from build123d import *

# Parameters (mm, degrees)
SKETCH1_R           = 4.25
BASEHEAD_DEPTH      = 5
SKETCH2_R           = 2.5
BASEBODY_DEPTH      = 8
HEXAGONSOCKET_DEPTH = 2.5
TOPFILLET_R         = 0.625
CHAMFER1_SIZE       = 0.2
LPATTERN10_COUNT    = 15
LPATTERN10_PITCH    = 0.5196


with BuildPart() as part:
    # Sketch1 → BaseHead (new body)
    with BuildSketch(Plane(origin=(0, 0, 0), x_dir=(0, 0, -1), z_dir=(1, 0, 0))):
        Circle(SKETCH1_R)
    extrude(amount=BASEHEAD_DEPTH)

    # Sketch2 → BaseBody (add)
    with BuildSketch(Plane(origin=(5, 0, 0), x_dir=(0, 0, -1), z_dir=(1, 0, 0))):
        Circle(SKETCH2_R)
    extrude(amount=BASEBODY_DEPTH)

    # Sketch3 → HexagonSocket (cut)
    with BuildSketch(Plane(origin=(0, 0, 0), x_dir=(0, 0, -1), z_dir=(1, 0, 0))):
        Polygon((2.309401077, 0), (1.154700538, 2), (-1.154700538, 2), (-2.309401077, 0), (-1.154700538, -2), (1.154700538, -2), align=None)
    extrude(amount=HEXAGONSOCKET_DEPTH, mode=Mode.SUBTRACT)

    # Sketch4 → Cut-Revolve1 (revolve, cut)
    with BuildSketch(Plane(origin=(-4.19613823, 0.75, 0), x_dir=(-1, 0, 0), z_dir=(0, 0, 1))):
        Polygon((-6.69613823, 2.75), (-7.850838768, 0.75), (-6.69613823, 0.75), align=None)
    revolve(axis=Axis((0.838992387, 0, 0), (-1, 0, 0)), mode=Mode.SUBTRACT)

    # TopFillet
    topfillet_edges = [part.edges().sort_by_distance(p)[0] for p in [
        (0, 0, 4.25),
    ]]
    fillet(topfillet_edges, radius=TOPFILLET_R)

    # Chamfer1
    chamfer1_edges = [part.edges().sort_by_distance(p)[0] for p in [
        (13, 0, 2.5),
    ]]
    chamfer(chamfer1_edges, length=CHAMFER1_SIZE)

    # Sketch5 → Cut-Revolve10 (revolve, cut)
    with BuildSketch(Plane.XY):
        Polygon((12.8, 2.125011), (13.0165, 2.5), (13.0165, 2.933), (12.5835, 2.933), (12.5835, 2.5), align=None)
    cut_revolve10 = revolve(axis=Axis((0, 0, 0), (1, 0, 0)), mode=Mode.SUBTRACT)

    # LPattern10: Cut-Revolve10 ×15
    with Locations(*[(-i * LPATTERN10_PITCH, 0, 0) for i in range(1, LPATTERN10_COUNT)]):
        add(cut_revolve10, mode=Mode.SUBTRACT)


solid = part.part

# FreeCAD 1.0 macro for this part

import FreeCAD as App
import Part
import Sketcher

V = App.Vector
Q = App.Units.Quantity


def edges_at(feature, points):
    """Names of the edges that pass closest to the given points."""
    edges = feature.Shape.Edges
    near = lambda p: min(range(len(edges)), key=lambda i: edges[i].distToShape(Part.Vertex(*p))[0])
    return sorted({f"Edge{near(p) + 1}" for p in points})


def add_polygon(sketch, points):
    """Adds a closed chain of lines whose ends are joined by coincident constraints."""
    first, n = sketch.GeometryCount, len(points)
    for a, b in zip(points, points[1:] + points[:1]):
        sketch.addGeometry(Part.LineSegment(App.Vector(*a, 0), App.Vector(*b, 0)), False)
    for i in range(n):
        sketch.addConstraint(Sketcher.Constraint("Coincident", first + i, 2, first + (i + 1) % n, 1))

doc = App.newDocument("Part")
body = doc.addObject("PartDesign::Body", "Body")

sketch1 = body.newObject("Sketcher::SketchObject", "Sketch")
sketch1.AttachmentSupport = (doc.getObject("YZ_Plane"), [""])
sketch1.MapMode = "FlatFace"
sketch1.addGeometry(Part.Circle(V(0, 0, 0), V(0, 0, 1), 4.2), False)
sketch1.addConstraint(Sketcher.Constraint("Coincident", 0, 3, -1, 1))
sketch1.addConstraint(Sketcher.Constraint("Diameter", 0, Q("8.5 mm")))
pad1 = body.newObject("PartDesign::Pad", "Pad")
pad1.Profile = sketch1
pad1.Length = 5

sketch2 = body.newObject("Sketcher::SketchObject", "Sketch001")
sketch2.AttachmentSupport = (doc.getObject("YZ_Plane"), [""])
sketch2.MapMode = "FlatFace"
sketch2.AttachmentOffset = App.Placement(V(0, 0, 5), App.Rotation())
sketch2.addGeometry(Part.Circle(V(0, 0, 0), V(0, 0, 1), 2.5), False)
sketch2.addConstraint(Sketcher.Constraint("Coincident", 0, 3, -1, 1))
sketch2.addConstraint(Sketcher.Constraint("Diameter", 0, Q("5 mm")))
pad2 = body.newObject("PartDesign::Pad", "Pad001")
pad2.Profile = sketch2
pad2.Length = 8

sketch3 = body.newObject("Sketcher::SketchObject", "Sketch002")
sketch3.AttachmentSupport = (doc.getObject("YZ_Plane"), [""])
sketch3.MapMode = "FlatFace"
add_polygon(sketch3, [(0, -2.3), (2, -1.2), (2, 1.2), (0, 2.3), (-2, 1.2), (-2, -1.2)])
sketch3.addConstraint(Sketcher.Constraint("Vertical", 1))
sketch3.addConstraint(Sketcher.Constraint("Vertical", 4))
sketch3.addConstraint(Sketcher.Constraint("Symmetric", 0, 2, 3, 2, -1, 1))
sketch3.addConstraint(Sketcher.Constraint("Symmetric", 2, 2, 5, 2, -1, 1))
sketch3.addConstraint(Sketcher.Constraint("PointOnObject", 2, 2, -2))
sketch3.addConstraint(Sketcher.Constraint("Parallel", 2, 5))
sketch3.addConstraint(Sketcher.Constraint("Horizontal", 1, 2, 3, 2))
sketch3.addConstraint(Sketcher.Constraint("Angle", 0, Q("30 deg")))
sketch3.addConstraint(Sketcher.Constraint("DistanceX", -1, 1, 0, 2, Q("2 mm")))
sketch3.addConstraint(Sketcher.Constraint("DistanceY", 1, 1, 1, 2, Q("2.309401 mm")))
pocket1 = body.newObject("PartDesign::Pocket", "Pocket")
pocket1.Profile = sketch3
pocket1.Length = 2.5
pocket1.Reversed = True

sketch4 = body.newObject("Sketcher::SketchObject", "Sketch003")
sketch4.AttachmentSupport = (doc.getObject("XY_Plane"), [""])
sketch4.MapMode = "FlatFace"
add_polygon(sketch4, [(2.5, -2), (3.7, 0), (2.5, 0)])
sketch4.addConstraint(Sketcher.Constraint("Horizontal", 1))
sketch4.addConstraint(Sketcher.Constraint("Vertical", 2))
sketch4.addConstraint(Sketcher.Constraint("PointOnObject", 0, 2, -1))
sketch4.addConstraint(Sketcher.Constraint("DistanceY", 2, 2, 2, 1, Q("2 mm")))
sketch4.addConstraint(Sketcher.Constraint("Angle", 0, Q("60 deg")))
sketch4.addConstraint(Sketcher.Constraint("DistanceX", -1, 1, 1, 2, Q("2.5 mm")))
groove = body.newObject("PartDesign::Groove", "Groove")
groove.Profile = sketch4
groove.ReferenceAxis = (sketch4, ["H_Axis"])
groove.Angle = 360
doc.recompute()

fillet = body.newObject("PartDesign::Fillet", "Fillet")
fillet.Base = (groove, edges_at(groove, [(0, 0, 4.25)]))
fillet.Radius = 0.625
doc.recompute()

chamfer = body.newObject("PartDesign::Chamfer", "Chamfer")
chamfer.Base = (fillet, edges_at(fillet, [(13, 0, 2.5)]))
chamfer.Size = 0.2

sketch5 = body.newObject("Sketcher::SketchObject", "Sketch004")
sketch5.AttachmentSupport = (doc.getObject("XY_Plane"), [""])
sketch5.MapMode = "FlatFace"
add_polygon(sketch5, [(12.8, 2.13), (13.02, 2.5), (13.02, 2.93), (12.58, 2.93), (12.58, 2.5)])
sketch5.addConstraint(Sketcher.Constraint("Vertical", 1))
sketch5.addConstraint(Sketcher.Constraint("Horizontal", 2))
sketch5.addConstraint(Sketcher.Constraint("Vertical", 3))
sketch5.addConstraint(Sketcher.Constraint("Horizontal", 0, 2, 3, 2))
sketch5.addConstraint(Sketcher.Constraint("Equal", 2, 1))
sketch5.addConstraint(Sketcher.Constraint("Equal", 0, 4))
sketch5.addConstraint(Sketcher.Constraint("Angle", 0, Q("60 deg")))
sketch5.addConstraint(Sketcher.Constraint("DistanceY", -1, 1, 0, 2, Q("2.5 mm")))
sketch5.addConstraint(Sketcher.Constraint("DistanceX", -1, 1, 4, 2, Q("12.8 mm")))
sketch5.addConstraint(Sketcher.Constraint("DistanceX", 2, 2, 2, 1, Q("0.433 mm")))
groove2 = body.newObject("PartDesign::Groove", "Groove001")
groove2.Profile = sketch5
groove2.ReferenceAxis = (sketch5, ["H_Axis"])
groove2.Angle = 360
doc.recompute()

linearpattern = body.newObject("PartDesign::LinearPattern", "LinearPattern")
linearpattern.Originals = [groove2]
linearpattern.Direction = (doc.getObject("X_Axis"), [""])
linearpattern.Mode = "offset"
linearpattern.Offset = 0.5196
linearpattern.Occurrences = 15
linearpattern.Reversed = True
body.Tip = linearpattern

doc.recompute()
